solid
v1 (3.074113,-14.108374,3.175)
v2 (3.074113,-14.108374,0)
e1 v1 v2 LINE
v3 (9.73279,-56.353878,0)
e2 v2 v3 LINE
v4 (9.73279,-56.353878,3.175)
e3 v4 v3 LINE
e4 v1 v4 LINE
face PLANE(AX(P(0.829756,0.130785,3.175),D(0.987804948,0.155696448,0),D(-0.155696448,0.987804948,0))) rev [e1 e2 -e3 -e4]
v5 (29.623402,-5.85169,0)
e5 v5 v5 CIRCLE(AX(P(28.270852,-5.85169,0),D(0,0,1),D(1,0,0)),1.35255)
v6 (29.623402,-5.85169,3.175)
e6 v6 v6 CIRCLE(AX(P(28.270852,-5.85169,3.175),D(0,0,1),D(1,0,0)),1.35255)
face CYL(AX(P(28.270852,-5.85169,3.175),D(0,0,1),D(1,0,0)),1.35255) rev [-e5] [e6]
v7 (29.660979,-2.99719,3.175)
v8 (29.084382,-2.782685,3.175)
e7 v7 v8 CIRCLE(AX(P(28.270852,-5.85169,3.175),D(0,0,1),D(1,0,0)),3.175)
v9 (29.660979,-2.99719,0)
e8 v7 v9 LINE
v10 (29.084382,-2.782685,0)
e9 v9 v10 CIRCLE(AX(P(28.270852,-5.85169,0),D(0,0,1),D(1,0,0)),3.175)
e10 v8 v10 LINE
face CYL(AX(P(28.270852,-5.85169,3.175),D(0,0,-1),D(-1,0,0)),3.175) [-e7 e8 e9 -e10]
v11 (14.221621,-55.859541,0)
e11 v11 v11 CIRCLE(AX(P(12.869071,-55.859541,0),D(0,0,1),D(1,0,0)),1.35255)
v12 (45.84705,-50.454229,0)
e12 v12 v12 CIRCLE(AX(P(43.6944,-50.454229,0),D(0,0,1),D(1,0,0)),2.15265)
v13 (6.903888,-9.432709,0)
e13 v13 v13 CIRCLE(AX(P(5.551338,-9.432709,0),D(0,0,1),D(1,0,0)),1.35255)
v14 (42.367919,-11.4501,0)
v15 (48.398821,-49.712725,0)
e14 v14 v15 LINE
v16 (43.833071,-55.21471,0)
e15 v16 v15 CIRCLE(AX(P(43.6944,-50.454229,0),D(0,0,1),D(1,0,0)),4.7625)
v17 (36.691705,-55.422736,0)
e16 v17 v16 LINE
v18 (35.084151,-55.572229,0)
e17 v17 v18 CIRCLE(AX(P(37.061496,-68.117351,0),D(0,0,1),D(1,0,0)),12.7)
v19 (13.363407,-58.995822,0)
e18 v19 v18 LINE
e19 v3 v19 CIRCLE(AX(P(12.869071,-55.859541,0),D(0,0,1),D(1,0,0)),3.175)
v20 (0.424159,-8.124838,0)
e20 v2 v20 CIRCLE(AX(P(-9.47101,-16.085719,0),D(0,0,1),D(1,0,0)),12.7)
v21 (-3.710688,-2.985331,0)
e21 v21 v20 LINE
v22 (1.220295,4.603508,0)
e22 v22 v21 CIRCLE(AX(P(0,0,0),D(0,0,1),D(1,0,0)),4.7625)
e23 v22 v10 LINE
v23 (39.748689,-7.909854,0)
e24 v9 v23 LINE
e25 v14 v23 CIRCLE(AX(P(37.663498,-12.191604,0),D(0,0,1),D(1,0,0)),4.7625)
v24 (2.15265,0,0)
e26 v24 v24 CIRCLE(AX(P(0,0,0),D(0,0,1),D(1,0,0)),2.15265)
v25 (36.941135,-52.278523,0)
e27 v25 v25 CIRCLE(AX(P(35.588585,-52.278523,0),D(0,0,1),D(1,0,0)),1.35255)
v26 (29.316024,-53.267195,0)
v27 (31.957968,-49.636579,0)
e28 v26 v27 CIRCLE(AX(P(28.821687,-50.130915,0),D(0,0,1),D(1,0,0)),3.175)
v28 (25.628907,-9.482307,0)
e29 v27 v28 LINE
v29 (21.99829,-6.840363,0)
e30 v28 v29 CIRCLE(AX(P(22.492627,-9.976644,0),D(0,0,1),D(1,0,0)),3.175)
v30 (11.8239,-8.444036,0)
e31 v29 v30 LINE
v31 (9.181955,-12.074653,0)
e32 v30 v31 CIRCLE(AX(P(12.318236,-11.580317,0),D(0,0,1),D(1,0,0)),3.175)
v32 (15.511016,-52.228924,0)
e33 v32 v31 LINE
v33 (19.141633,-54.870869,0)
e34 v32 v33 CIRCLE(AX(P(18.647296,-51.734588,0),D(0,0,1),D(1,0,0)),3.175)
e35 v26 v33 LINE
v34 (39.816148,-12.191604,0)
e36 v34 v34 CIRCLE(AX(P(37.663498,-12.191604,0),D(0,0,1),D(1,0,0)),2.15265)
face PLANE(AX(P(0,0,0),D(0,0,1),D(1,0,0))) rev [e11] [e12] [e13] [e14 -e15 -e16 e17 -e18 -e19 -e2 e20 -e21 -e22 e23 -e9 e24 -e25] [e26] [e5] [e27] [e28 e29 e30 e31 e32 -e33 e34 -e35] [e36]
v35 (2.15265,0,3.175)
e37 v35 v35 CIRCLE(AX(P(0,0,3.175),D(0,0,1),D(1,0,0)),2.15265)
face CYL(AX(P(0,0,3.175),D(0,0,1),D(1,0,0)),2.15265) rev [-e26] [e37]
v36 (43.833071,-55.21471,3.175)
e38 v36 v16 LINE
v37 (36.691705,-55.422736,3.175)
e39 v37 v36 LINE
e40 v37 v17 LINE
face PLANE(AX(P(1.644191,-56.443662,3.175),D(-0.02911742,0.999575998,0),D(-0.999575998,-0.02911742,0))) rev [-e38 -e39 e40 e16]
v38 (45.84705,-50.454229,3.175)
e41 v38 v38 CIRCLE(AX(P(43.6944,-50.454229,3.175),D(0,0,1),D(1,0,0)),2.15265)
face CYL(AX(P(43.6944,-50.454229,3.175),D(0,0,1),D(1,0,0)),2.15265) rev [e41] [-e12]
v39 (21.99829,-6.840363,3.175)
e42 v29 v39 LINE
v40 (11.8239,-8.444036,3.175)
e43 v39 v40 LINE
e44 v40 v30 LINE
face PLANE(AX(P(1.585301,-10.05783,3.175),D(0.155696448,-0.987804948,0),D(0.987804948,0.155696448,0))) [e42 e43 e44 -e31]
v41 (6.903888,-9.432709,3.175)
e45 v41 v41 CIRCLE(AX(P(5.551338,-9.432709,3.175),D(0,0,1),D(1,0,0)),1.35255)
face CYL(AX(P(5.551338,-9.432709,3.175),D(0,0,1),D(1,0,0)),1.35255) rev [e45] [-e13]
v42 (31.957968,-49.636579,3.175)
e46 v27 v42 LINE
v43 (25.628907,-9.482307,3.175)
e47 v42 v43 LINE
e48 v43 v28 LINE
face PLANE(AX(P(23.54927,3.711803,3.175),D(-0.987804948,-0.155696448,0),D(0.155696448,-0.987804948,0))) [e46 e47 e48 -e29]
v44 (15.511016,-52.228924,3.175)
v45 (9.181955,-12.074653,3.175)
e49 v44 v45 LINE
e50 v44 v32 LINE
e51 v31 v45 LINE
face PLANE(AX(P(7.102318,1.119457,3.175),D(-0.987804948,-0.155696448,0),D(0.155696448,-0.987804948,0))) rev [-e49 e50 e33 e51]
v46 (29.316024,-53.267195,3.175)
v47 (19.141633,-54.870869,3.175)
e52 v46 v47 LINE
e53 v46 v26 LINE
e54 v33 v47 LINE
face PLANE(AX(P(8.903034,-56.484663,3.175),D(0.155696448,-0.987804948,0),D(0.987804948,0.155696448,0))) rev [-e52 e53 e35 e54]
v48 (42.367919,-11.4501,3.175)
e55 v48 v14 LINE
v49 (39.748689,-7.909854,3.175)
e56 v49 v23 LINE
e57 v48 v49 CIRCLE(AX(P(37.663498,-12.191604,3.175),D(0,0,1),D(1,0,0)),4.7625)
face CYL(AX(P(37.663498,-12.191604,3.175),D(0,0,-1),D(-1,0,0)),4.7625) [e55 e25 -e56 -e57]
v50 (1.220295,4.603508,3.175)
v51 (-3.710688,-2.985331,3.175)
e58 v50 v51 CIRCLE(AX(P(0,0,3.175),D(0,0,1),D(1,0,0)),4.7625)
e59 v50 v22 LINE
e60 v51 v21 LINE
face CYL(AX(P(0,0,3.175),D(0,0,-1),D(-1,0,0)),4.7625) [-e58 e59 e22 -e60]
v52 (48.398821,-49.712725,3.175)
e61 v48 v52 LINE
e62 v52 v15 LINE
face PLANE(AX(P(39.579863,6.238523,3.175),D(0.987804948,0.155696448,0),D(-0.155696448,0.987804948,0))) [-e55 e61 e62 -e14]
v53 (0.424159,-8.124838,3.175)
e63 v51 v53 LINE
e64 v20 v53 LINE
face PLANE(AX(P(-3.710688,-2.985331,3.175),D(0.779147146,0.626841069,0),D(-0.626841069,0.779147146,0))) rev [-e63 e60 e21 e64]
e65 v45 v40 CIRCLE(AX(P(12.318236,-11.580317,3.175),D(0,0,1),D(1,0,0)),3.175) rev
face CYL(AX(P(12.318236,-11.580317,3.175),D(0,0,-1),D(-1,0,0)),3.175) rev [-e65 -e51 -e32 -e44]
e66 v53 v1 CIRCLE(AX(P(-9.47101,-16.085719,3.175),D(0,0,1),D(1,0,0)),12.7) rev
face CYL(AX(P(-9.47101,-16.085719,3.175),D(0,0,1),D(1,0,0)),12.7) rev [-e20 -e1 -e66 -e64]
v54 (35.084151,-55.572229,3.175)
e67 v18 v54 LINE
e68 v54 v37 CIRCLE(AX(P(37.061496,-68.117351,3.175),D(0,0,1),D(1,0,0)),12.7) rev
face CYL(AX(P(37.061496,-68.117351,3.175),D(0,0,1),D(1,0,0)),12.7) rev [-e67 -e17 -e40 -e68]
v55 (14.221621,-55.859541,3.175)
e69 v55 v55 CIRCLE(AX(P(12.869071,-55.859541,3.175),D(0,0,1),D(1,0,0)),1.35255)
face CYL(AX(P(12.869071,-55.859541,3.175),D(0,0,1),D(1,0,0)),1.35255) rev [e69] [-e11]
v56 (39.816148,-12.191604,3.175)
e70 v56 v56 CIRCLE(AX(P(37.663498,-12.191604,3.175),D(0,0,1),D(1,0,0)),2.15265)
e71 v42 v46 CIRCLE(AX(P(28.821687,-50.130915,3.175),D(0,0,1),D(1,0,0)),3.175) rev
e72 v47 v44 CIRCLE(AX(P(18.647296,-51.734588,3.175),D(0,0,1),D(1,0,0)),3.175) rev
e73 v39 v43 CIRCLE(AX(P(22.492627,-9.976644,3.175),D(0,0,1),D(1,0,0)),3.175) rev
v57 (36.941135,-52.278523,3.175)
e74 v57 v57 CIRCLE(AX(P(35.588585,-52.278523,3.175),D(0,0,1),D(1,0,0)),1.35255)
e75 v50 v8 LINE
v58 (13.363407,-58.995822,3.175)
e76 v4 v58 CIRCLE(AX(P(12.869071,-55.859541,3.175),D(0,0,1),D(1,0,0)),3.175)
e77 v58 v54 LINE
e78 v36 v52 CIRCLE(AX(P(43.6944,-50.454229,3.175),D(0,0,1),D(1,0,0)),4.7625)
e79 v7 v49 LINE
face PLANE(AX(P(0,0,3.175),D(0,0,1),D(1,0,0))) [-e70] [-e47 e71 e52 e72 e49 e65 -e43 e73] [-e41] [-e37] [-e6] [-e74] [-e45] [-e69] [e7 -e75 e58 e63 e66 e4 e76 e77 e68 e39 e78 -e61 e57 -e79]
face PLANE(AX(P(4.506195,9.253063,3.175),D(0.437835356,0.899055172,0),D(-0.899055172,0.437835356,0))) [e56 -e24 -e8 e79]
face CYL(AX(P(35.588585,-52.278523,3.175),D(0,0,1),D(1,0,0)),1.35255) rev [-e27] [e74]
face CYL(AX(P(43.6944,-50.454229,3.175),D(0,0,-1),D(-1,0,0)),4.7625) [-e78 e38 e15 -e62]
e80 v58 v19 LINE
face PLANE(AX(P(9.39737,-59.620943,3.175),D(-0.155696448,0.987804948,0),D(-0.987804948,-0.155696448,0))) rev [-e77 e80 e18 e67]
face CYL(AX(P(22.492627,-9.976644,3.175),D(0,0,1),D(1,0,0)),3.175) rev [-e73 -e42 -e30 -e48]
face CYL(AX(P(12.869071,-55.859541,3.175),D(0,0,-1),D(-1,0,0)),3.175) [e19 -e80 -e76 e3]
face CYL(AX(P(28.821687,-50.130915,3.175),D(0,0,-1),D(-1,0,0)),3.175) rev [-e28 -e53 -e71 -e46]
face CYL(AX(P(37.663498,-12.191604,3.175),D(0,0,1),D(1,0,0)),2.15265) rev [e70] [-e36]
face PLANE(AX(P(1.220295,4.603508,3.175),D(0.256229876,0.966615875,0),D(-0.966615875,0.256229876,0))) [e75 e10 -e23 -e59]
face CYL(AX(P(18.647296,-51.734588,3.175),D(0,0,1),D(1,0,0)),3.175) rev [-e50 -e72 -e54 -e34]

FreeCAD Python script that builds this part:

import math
import FreeCAD as App
import Part
import Sketcher
Q = App.Units.Quantity


def edges_at(feature, points):
    """Names of the edges that pass closest to the given points."""
    edges = feature.Shape.Edges
    near = lambda p: min(range(len(edges)), key=lambda i: edges[i].distToShape(Part.Vertex(*p))[0])
    return sorted({f"Edge{near(p) + 1}" for p in points})

doc = App.newDocument("Part")
params = doc.addObject("Spreadsheet::Sheet", "Params")
for row, (alias, value) in enumerate([
    ("sketch1_radius", "0.1875 in"),
    ("sketch1_radius2", "0.125 in"),
    ("sketch1_length", "1.525 in"),
    ("pad1_length", "0.125 in"),
    ("fillet_radius", "0.125 in"),
    ("fillet2_radius", "0.5 in"),
    ("hole_diameter", "0.1065 in"),
    ("hole2_diameter", "0.1695 in"),
], start=1):
    params.set(f"A{row}", alias)
    params.set(f"B{row}", "=" + value)
    params.setAlias(f"B{row}", alias)

body = doc.addObject("PartDesign::Body", "Body")

# Sketch on XY plane
sketch1 = body.newObject("Sketcher::SketchObject", "Sketch")
sketch1.AttachmentSupport = (doc.getObject("XY_Plane"), [""])
sketch1.MapMode = "FlatFace"
sketch1.addGeometry([
    Part.LineSegment(App.Vector(13.363407, -58.995822, 0), App.Vector(35.883167, -55.446289, 0)),  # 0
    Part.LineSegment(App.Vector(35.883167, -55.446289, 0), App.Vector(43.833071, -55.21471, 0)),  # 1
    Part.ArcOfCircle(Part.Circle(App.Vector(43.6944, -50.454229, 0), App.Vector(0, 0, 1), 4.7625), math.radians(-88.331459), math.radians(8.95719)),  # 2
    Part.LineSegment(App.Vector(48.398821, -49.712725, 0), App.Vector(42.367919, -11.4501, 0)),  # 3
    Part.ArcOfCircle(Part.Circle(App.Vector(37.663498, -12.191604, 0), App.Vector(0, 0, 1), 4.7625), math.radians(8.95719), math.radians(64.03415)),  # 4
    Part.LineSegment(App.Vector(39.748689, -7.909854, 0), App.Vector(29.660979, -2.99719, 0)),  # 5
    Part.ArcOfCircle(Part.Circle(App.Vector(28.270852, -5.85169, 0), App.Vector(0, 0, 1), 3.175), math.radians(64.03415), math.radians(75.153527)),  # 6
    Part.LineSegment(App.Vector(29.084382, -2.782685, 0), App.Vector(1.220295, 4.603508, 0)),  # 7
    Part.ArcOfCircle(Part.Circle(App.Vector(0, 0, 0), App.Vector(0, 0, 1), 4.7625), math.radians(75.153527), math.radians(218.817445)),  # 8
    Part.LineSegment(App.Vector(-3.710688, -2.985331, 0), App.Vector(2.546868, -10.763311, 0)),  # 9
    Part.LineSegment(App.Vector(2.546868, -10.763311, 0), App.Vector(9.73279, -56.353878, 0)),  # 10
    Part.ArcOfCircle(Part.Circle(App.Vector(12.869071, -55.859541, 0), App.Vector(0, 0, 1), 3.175), math.radians(-171.04281), math.radians(-81.04281)),  # 11
    Part.LineSegment(App.Vector(8.687619, -8.938373, 0), App.Vector(25.134571, -6.346027, 0)),  # 12
    Part.LineSegment(App.Vector(25.134571, -6.346027, 0), App.Vector(32.452304, -52.772859, 0)),  # 13
    Part.LineSegment(App.Vector(32.452304, -52.772859, 0), App.Vector(16.005352, -55.365205, 0)),  # 14
    Part.LineSegment(App.Vector(16.005352, -55.365205, 0), App.Vector(8.687619, -8.938373, 0)),  # 15
], False)
sketch1.addConstraint([
    Sketcher.Constraint("Coincident", 0, 2, 1, 1),
    Sketcher.Constraint("Tangent", 1, 2, 2, 1),
    Sketcher.Constraint("Tangent", 2, 2, 3, 1),
    Sketcher.Constraint("Tangent", 3, 2, 4, 1),
    Sketcher.Constraint("Tangent", 4, 2, 5, 1),
    Sketcher.Constraint("Tangent", 5, 2, 6, 1),
    Sketcher.Constraint("Tangent", 6, 2, 7, 1),
    Sketcher.Constraint("Tangent", 7, 2, 8, 1),
    Sketcher.Constraint("Tangent", 8, 2, 9, 1),
    Sketcher.Constraint("Coincident", 9, 2, 10, 1),
    Sketcher.Constraint("Tangent", 10, 2, 11, 1),
    Sketcher.Constraint("Tangent", 11, 2, 0, 1),
    Sketcher.Constraint("Coincident", 12, 2, 13, 1),
    Sketcher.Constraint("Coincident", 13, 2, 14, 1),
    Sketcher.Constraint("Coincident", 14, 2, 15, 1),
    Sketcher.Constraint("Coincident", 15, 2, 12, 1),
    Sketcher.Constraint("Coincident", 8, 3, -1, 1),
    Sketcher.Constraint("Equal", 2, 4),
    Sketcher.Constraint("Equal", 4, 8),
    Sketcher.Constraint("Equal", 6, 11),
    Sketcher.Constraint("Perpendicular", 0, 3),
    Sketcher.Constraint("Parallel", 3, 10),
    Sketcher.Constraint("Perpendicular", 10, 12),
    Sketcher.Constraint("Perpendicular", 12, 13),
    Sketcher.Constraint("Perpendicular", 13, 14),
    Sketcher.Constraint("Perpendicular", 14, 15),
    Sketcher.Constraint("Radius", 2, Q("0.1875 in")),
    Sketcher.Constraint("Radius", 6, Q("0.125 in")),
    Sketcher.Constraint("Distance", 3, Q("1.525 in")),
    Sketcher.Constraint("Distance", 12, Q("16.65 mm")),
    Sketcher.Constraint("Distance", 13, Q("47 mm")),
    Sketcher.Constraint("DistanceX", -1, 1, 2, 3, Q("43.6944 mm")),
    Sketcher.Constraint("DistanceY", 3, 2, -1, 1, Q("11.4501 mm")),
    Sketcher.Constraint("DistanceX", 4, 3, 2, 3, Q("6.030902 mm")),
    Sketcher.Constraint("DistanceY", 0, 2, 6, 3, Q("49.594598 mm")),
    Sketcher.Constraint("DistanceX", 11, 3, 1, 2, Q("30.964 mm")),
    Sketcher.Constraint("DistanceY", 6, 3, 5, 2, Q("2.8545 mm")),
    Sketcher.Constraint("DistanceY", 6, 3, 7, 2, Q("10.455199 mm")),
    Sketcher.Constraint("Distance", 0, Q("22.79778 mm")),
    Sketcher.Constraint("Distance", 10, Q("46.15341 mm")),
    Sketcher.Constraint("DistanceX", -1, 1, 12, 2, Q("25.134571 mm")),
    Sketcher.Constraint("DistanceY", 13, 2, -1, 1, Q("52.772859 mm")),
])
sketch1.setExpression("Constraints[26]", "Params.sketch1_radius")
sketch1.setExpression("Constraints[27]", "Params.sketch1_radius2")
sketch1.setExpression("Constraints[28]", "Params.sketch1_length")
pad1 = body.newObject("PartDesign::Pad", "Pad")
pad1.Profile = sketch1
pad1.setExpression("Length", "Params.pad1_length")
doc.recompute()

fillet = body.newObject("PartDesign::Fillet", "Fillet")
fillet.Base = (pad1, edges_at(pad1, [
    (32.452, -52.773, 1.587),
    (25.135, -6.346, 1.587),
    (8.688, -8.938, 1.587),
    (16.005, -55.365, 1.587),
]))
fillet.setExpression("Radius", "Params.fillet_radius")
doc.recompute()

fillet2 = body.newObject("PartDesign::Fillet", "Fillet001")
fillet2.Base = (fillet, edges_at(fillet, [(2.547, -10.763, 1.587), (35.883, -55.446, 1.587)]))
fillet2.setExpression("Radius", "Params.fillet2_radius")

# Sketch on XY plane
sketch2 = body.newObject("Sketcher::SketchObject", "Sketch001")
sketch2.AttachmentSupport = (doc.getObject("XY_Plane"), [""])
sketch2.MapMode = "FlatFace"
sketch2.AttachmentOffset = App.Placement(App.Vector(0, 0, 0.125 * 25.4), App.Rotation())
sketch2.addGeometry([
    Part.Circle(App.Vector(5.551338, -9.432709, 0), App.Vector(0, 0, 1), 1.35255),
    Part.Circle(App.Vector(28.270852, -5.85169, 0), App.Vector(0, 0, 1), 1.35255),
    Part.Circle(App.Vector(35.588585, -52.278523, 0), App.Vector(0, 0, 1), 1.35255),
    Part.Circle(App.Vector(12.869071, -55.859541, 0), App.Vector(0, 0, 1), 1.35255),
], False)
sketch2.addConstraint([
    Sketcher.Constraint("Equal", 0, 1),
    Sketcher.Constraint("Equal", 1, 2),
    Sketcher.Constraint("Equal", 2, 3),
    Sketcher.Constraint("Diameter", 0, Q("0.1065 in")),
    Sketcher.Constraint("DistanceX", -1, 1, 0, 3, Q("5.551338 mm")),
    Sketcher.Constraint("DistanceY", 0, 3, -1, 1, Q("9.432709 mm")),
    Sketcher.Constraint("DistanceX", -1, 1, 1, 3, Q("28.270852 mm")),
    Sketcher.Constraint("DistanceY", 1, 3, -1, 1, Q("5.85169 mm")),
    Sketcher.Constraint("DistanceX", -1, 1, 3, 3, Q("12.869071 mm")),
    Sketcher.Constraint("DistanceY", 3, 3, -1, 1, Q("55.859541 mm")),
    Sketcher.Constraint("DistanceY", 3, 3, 2, 3, Q("3.581018 mm")),
    Sketcher.Constraint("DistanceX", -1, 1, 2, 3, Q("35.588585 mm")),
])
doc.recompute()
hole = body.newObject("PartDesign::Hole", "Hole")
hole.Profile = sketch2
hole.ThreadType = "None"
hole.setExpression("Diameter", "Params.hole_diameter")
hole.DepthType = "ThroughAll"

# Sketch on XY plane
sketch3 = body.newObject("Sketcher::SketchObject", "Sketch002")
sketch3.AttachmentSupport = (doc.getObject("XY_Plane"), [""])
sketch3.MapMode = "FlatFace"
sketch3.AttachmentOffset = App.Placement(App.Vector(0, 0, 0.125 * 25.4), App.Rotation())
sketch3.addGeometry([
    Part.Circle(App.Vector(0, 0, 0), App.Vector(0, 0, 1), 2.15265),
    Part.Circle(App.Vector(37.663498, -12.191604, 0), App.Vector(0, 0, 1), 2.15265),
    Part.Circle(App.Vector(43.6944, -50.454229, 0), App.Vector(0, 0, 1), 2.15265),
], False)
sketch3.addConstraint([
    Sketcher.Constraint("Coincident", 0, 3, -1, 1),
    Sketcher.Constraint("Equal", 0, 1),
    Sketcher.Constraint("Equal", 1, 2),
    Sketcher.Constraint("Diameter", 0, Q("0.1695 in")),
    Sketcher.Constraint("DistanceX", -1, 1, 2, 3, Q("43.6944 mm")),
    Sketcher.Constraint("DistanceX", 1, 3, 2, 3, Q("6.030902 mm")),
    Sketcher.Constraint("DistanceY", 2, 3, -1, 1, Q("50.454229 mm")),
    Sketcher.Constraint("DistanceY", 1, 3, -1, 1, Q("12.191604 mm")),
])
doc.recompute()
hole2 = body.newObject("PartDesign::Hole", "Hole001")
hole2.Profile = sketch3
hole2.ThreadType = "None"
hole2.setExpression("Diameter", "Params.hole2_diameter")
hole2.DepthType = "ThroughAll"

doc.recompute()
